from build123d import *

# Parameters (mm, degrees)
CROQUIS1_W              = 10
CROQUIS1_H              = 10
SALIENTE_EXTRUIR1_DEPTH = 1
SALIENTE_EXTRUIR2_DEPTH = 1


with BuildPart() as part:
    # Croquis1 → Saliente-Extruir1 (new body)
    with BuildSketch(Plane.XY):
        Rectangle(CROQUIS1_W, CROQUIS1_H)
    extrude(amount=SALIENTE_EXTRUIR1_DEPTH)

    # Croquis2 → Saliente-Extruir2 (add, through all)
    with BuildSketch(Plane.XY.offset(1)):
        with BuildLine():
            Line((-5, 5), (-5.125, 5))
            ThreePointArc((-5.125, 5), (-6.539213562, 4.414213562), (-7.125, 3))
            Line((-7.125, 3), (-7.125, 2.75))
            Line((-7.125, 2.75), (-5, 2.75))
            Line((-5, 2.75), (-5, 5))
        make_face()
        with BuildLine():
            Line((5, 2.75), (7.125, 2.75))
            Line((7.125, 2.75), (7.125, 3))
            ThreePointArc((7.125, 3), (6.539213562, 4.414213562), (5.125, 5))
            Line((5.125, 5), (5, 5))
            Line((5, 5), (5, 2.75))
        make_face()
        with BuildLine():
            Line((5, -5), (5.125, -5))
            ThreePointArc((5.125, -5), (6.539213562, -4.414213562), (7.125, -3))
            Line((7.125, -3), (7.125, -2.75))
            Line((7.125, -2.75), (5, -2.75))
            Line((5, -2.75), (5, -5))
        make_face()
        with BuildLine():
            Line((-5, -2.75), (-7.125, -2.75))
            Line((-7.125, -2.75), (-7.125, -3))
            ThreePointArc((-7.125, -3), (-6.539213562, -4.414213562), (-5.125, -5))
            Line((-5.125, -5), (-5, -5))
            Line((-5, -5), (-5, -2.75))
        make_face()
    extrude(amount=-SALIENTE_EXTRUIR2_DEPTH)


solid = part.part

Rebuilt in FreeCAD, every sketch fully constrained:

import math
import FreeCAD as App
import Part
import Sketcher

doc = App.newDocument("Part")
body = doc.addObject("PartDesign::Body", "Body")

# Sketch on XY plane
sketch1 = body.newObject("Sketcher::SketchObject", "Sketch")
sketch1.AttachmentSupport = (doc.getObject("XY_Plane"), [""])
sketch1.MapMode = "FlatFace"
sketch1.addGeometry(Part.LineSegment(App.Vector(-5, 5, 0), App.Vector(-5, -5, 0)), False)
sketch1.addGeometry(Part.LineSegment(App.Vector(-5, -5, 0), App.Vector(5, -5, 0)), False)
sketch1.addGeometry(Part.LineSegment(App.Vector(5, -5, 0), App.Vector(5, 5, 0)), False)
sketch1.addGeometry(Part.LineSegment(App.Vector(5, 5, 0), App.Vector(-5, 5, 0)), False)
sketch1.addConstraint(Sketcher.Constraint("Coincident", 0, 2, 1, 1))
sketch1.addConstraint(Sketcher.Constraint("Coincident", 1, 2, 2, 1))
sketch1.addConstraint(Sketcher.Constraint("Coincident", 2, 2, 3, 1))
sketch1.addConstraint(Sketcher.Constraint("Coincident", 3, 2, 0, 1))
sketch1.addConstraint(Sketcher.Constraint("Vertical", 0))
sketch1.addConstraint(Sketcher.Constraint("Horizontal", 1))
sketch1.addConstraint(Sketcher.Constraint("Vertical", 2))
sketch1.addConstraint(Sketcher.Constraint("Horizontal", 3))
sketch1.addConstraint(Sketcher.Constraint("Symmetric", 0, 2, 2, 2, -1, 1))
sketch1.addConstraint(Sketcher.Constraint("Equal", 3, 0))
sketch1.addConstraint(Sketcher.Constraint("DistanceX", 1, 1, 1, 2, 10.0))
pad1 = body.newObject("PartDesign::Pad", "Pad")
pad1.Profile = sketch1
pad1.Length = 1

# Sketch on XY plane
sketch2 = body.newObject("Sketcher::SketchObject", "Sketch001")
sketch2.AttachmentSupport = (doc.getObject("XY_Plane"), [""])
sketch2.MapMode = "FlatFace"
sketch2.AttachmentOffset = App.Placement(App.Vector(0, 0, 1), App.Rotation())
sketch2.addGeometry(Part.LineSegment(App.Vector(-5, 5, 0), App.Vector(-5.12, 5, 0)), False)
sketch2.addGeometry(Part.ArcOfCircle(Part.Circle(App.Vector(-5.12, 3, 0), App.Vector(0, 0, 1), 2), math.radians(90), math.radians(180)), False)
sketch2.addGeometry(Part.LineSegment(App.Vector(-7.12, 3, 0), App.Vector(-7.12, 2.75, 0)), False)
sketch2.addGeometry(Part.LineSegment(App.Vector(-7.12, 2.75, 0), App.Vector(-5, 2.75, 0)), False)
sketch2.addGeometry(Part.LineSegment(App.Vector(-5, 2.75, 0), App.Vector(-5, 5, 0)), False)
sketch2.addGeometry(Part.LineSegment(App.Vector(5, 2.75, 0), App.Vector(7.12, 2.75, 0)), False)
sketch2.addGeometry(Part.LineSegment(App.Vector(7.12, 2.75, 0), App.Vector(7.12, 3, 0)), False)
sketch2.addGeometry(Part.ArcOfCircle(Part.Circle(App.Vector(5.12, 3, 0), App.Vector(0, 0, 1), 2), math.radians(0), math.radians(90)), False)
sketch2.addGeometry(Part.LineSegment(App.Vector(5.12, 5, 0), App.Vector(5, 5, 0)), False)
sketch2.addGeometry(Part.LineSegment(App.Vector(5, 5, 0), App.Vector(5, 2.75, 0)), False)
sketch2.addGeometry(Part.LineSegment(App.Vector(5, -5, 0), App.Vector(5.12, -5, 0)), False)
sketch2.addGeometry(Part.ArcOfCircle(Part.Circle(App.Vector(5.12, -3, 0), App.Vector(0, 0, 1), 2), math.radians(-90), math.radians(0)), False)
sketch2.addGeometry(Part.LineSegment(App.Vector(7.12, -3, 0), App.Vector(7.12, -2.75, 0)), False)
sketch2.addGeometry(Part.LineSegment(App.Vector(7.12, -2.75, 0), App.Vector(5, -2.75, 0)), False)
sketch2.addGeometry(Part.LineSegment(App.Vector(5, -2.75, 0), App.Vector(5, -5, 0)), False)
sketch2.addGeometry(Part.LineSegment(App.Vector(-5, -2.75, 0), App.Vector(-7.12, -2.75, 0)), False)
sketch2.addGeometry(Part.LineSegment(App.Vector(-7.12, -2.75, 0), App.Vector(-7.12, -3, 0)), False)
sketch2.addGeometry(Part.ArcOfCircle(Part.Circle(App.Vector(-5.12, -3, 0), App.Vector(0, 0, 1), 2), math.radians(-180), math.radians(-90)), False)
sketch2.addGeometry(Part.LineSegment(App.Vector(-5.12, -5, 0), App.Vector(-5, -5, 0)), False)
sketch2.addGeometry(Part.LineSegment(App.Vector(-5, -5, 0), App.Vector(-5, -2.75, 0)), False)
sketch2.addConstraint(Sketcher.Constraint("Tangent", 0, 2, 1, 1))
sketch2.addConstraint(Sketcher.Constraint("Tangent", 1, 2, 2, 1))
sketch2.addConstraint(Sketcher.Constraint("Coincident", 2, 2, 3, 1))
sketch2.addConstraint(Sketcher.Constraint("Coincident", 3, 2, 4, 1))
sketch2.addConstraint(Sketcher.Constraint("Coincident", 4, 2, 0, 1))
sketch2.addConstraint(Sketcher.Constraint("Coincident", 5, 2, 6, 1))
sketch2.addConstraint(Sketcher.Constraint("Tangent", 6, 2, 7, 1))
sketch2.addConstraint(Sketcher.Constraint("Tangent", 7, 2, 8, 1))
sketch2.addConstraint(Sketcher.Constraint("Coincident", 8, 2, 9, 1))
sketch2.addConstraint(Sketcher.Constraint("Coincident", 9, 2, 5, 1))
sketch2.addConstraint(Sketcher.Constraint("Tangent", 10, 2, 11, 1))
sketch2.addConstraint(Sketcher.Constraint("Tangent", 11, 2, 12, 1))
sketch2.addConstraint(Sketcher.Constraint("Coincident", 12, 2, 13, 1))
sketch2.addConstraint(Sketcher.Constraint("Coincident", 13, 2, 14, 1))
sketch2.addConstraint(Sketcher.Constraint("Coincident", 14, 2, 10, 1))
sketch2.addConstraint(Sketcher.Constraint("Coincident", 15, 2, 16, 1))
sketch2.addConstraint(Sketcher.Constraint("Tangent", 16, 2, 17, 1))
sketch2.addConstraint(Sketcher.Constraint("Tangent", 17, 2, 18, 1))
sketch2.addConstraint(Sketcher.Constraint("Coincident", 18, 2, 19, 1))
sketch2.addConstraint(Sketcher.Constraint("Coincident", 19, 2, 15, 1))
sketch2.addConstraint(Sketcher.Constraint("Horizontal", 0))
sketch2.addConstraint(Sketcher.Constraint("Vertical", 2))
sketch2.addConstraint(Sketcher.Constraint("Horizontal", 3))
sketch2.addConstraint(Sketcher.Constraint("Vertical", 4))
sketch2.addConstraint(Sketcher.Constraint("Horizontal", 5))
sketch2.addConstraint(Sketcher.Constraint("Vertical", 6))
sketch2.addConstraint(Sketcher.Constraint("Horizontal", 8))
sketch2.addConstraint(Sketcher.Constraint("Vertical", 9))
sketch2.addConstraint(Sketcher.Constraint("Horizontal", 10))
sketch2.addConstraint(Sketcher.Constraint("Vertical", 12))
sketch2.addConstraint(Sketcher.Constraint("Horizontal", 13))
sketch2.addConstraint(Sketcher.Constraint("Vertical", 14))
sketch2.addConstraint(Sketcher.Constraint("Horizontal", 15))
sketch2.addConstraint(Sketcher.Constraint("Vertical", 16))
sketch2.addConstraint(Sketcher.Constraint("Horizontal", 18))
sketch2.addConstraint(Sketcher.Constraint("Vertical", 19))
sketch2.addConstraint(Sketcher.Constraint("Equal", 1, 7))
sketch2.addConstraint(Sketcher.Constraint("Equal", 7, 11))
sketch2.addConstraint(Sketcher.Constraint("Equal", 11, 17))
sketch2.addConstraint(Sketcher.Constraint("Symmetric", 1, 3, 11, 3, -1, 1))
sketch2.addConstraint(Sketcher.Constraint("Symmetric", 7, 3, 17, 3, -1, 1))
sketch2.addConstraint(Sketcher.Constraint("Symmetric", 3, 2, 13, 2, -1, 1))
sketch2.addConstraint(Sketcher.Constraint("Symmetric", 9, 2, 19, 2, -1, 1))
sketch2.addConstraint(Sketcher.Constraint("Symmetric", 1, 3, 7, 3, -2))
sketch2.addConstraint(Sketcher.Constraint("Symmetric", 3, 2, 9, 2, -2))
sketch2.addConstraint(Sketcher.Constraint("Radius", 1, 2.0))
sketch2.addConstraint(Sketcher.Constraint("DistanceY", -1, 1, 1, 3, 3.0))
sketch2.addConstraint(Sketcher.Constraint("DistanceX", 3, 2, -1, 1, 5.0))
sketch2.addConstraint(Sketcher.Constraint("DistanceY", 2, 2, 2, 1, 0.25))
sketch2.addConstraint(Sketcher.Constraint("DistanceX", 0, 2, 0, 1, 0.125))
pad2 = body.newObject("PartDesign::Pad", "Pad001")
pad2.Profile = sketch2
pad2.Type = "UpToLast"
pad2.Reversed = True

doc.recompute()
